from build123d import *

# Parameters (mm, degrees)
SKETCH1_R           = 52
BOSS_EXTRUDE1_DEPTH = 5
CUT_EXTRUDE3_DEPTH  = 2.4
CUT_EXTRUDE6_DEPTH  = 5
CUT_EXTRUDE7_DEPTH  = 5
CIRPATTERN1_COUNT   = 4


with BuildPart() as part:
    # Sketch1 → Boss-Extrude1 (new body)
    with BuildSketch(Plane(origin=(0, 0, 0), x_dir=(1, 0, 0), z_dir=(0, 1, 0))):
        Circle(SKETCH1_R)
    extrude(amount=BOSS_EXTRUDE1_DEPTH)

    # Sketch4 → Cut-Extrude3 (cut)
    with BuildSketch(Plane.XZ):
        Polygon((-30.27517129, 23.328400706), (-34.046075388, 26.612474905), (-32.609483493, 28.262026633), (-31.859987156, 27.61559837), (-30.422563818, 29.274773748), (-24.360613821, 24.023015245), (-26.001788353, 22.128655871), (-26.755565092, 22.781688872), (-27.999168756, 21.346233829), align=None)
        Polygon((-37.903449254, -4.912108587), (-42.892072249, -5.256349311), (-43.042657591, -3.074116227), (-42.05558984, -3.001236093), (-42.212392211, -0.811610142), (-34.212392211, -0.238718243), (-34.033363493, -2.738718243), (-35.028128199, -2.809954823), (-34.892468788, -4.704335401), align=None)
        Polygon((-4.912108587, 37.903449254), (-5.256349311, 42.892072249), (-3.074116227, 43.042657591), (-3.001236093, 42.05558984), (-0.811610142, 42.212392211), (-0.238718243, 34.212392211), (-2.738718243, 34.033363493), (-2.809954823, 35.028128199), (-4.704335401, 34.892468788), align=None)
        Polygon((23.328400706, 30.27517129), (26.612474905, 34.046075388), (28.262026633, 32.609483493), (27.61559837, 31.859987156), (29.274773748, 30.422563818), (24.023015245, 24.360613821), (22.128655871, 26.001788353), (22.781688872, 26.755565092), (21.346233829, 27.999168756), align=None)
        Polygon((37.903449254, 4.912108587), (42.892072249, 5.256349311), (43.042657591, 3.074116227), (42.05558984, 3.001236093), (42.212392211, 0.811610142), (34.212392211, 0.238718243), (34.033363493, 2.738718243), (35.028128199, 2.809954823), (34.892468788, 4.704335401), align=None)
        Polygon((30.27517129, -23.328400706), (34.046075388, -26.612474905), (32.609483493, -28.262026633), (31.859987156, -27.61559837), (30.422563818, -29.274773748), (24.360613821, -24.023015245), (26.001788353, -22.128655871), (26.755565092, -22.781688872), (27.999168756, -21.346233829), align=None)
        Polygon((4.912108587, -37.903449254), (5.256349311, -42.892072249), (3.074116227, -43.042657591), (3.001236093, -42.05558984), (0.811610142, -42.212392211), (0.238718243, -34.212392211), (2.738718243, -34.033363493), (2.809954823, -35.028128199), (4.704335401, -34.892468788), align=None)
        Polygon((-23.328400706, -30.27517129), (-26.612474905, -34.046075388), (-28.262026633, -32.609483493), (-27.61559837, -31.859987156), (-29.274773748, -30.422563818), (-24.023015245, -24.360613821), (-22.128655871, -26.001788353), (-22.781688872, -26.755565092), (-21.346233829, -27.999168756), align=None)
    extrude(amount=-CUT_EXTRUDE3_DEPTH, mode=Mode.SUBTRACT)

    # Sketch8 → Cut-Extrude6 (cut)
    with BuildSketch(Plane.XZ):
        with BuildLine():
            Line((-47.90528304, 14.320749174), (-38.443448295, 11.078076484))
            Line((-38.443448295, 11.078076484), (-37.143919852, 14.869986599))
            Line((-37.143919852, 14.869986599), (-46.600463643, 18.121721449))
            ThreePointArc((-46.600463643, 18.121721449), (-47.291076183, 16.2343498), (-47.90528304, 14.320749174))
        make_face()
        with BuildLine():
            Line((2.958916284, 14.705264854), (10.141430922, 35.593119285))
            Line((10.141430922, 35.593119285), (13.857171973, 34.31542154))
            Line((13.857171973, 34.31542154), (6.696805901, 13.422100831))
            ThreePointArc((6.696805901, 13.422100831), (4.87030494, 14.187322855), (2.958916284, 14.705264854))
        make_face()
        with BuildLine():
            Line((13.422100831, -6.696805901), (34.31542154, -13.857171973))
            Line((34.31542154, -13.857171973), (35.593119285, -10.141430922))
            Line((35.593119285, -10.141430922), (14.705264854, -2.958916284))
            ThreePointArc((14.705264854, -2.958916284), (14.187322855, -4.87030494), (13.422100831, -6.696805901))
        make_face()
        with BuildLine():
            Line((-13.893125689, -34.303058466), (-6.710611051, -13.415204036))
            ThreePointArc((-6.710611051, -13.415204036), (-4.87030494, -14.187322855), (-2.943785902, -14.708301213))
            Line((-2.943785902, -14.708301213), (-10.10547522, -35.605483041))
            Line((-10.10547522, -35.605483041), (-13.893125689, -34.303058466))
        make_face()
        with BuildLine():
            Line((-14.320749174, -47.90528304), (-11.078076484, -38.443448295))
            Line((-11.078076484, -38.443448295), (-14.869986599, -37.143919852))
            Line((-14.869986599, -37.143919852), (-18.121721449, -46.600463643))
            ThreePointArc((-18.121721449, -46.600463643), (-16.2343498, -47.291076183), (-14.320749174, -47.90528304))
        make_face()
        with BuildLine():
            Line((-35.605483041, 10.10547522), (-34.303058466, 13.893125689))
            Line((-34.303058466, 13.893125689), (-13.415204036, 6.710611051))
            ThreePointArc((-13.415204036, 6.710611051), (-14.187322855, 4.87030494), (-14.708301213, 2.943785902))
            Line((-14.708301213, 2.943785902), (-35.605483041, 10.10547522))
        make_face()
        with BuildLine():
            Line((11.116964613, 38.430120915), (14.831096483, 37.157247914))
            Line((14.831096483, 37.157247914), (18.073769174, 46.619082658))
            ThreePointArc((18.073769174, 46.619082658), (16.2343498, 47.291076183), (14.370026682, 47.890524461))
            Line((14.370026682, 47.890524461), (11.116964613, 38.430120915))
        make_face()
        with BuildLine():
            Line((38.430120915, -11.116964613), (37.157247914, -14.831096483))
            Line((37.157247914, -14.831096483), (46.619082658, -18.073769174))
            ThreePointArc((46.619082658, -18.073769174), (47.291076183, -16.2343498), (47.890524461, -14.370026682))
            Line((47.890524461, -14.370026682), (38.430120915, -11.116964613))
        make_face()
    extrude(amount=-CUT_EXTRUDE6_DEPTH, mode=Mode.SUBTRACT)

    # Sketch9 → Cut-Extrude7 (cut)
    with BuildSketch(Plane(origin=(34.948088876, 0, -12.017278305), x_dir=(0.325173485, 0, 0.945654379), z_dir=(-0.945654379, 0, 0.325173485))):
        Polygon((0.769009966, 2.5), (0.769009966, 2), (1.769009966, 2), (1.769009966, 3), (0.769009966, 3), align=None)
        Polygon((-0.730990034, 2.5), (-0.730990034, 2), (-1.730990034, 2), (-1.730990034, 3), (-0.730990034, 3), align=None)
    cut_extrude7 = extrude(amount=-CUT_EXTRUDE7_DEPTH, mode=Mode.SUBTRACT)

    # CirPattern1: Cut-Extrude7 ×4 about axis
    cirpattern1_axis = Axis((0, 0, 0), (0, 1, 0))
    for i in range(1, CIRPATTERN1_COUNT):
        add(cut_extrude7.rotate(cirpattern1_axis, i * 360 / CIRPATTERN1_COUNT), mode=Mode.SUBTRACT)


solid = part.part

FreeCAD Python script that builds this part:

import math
import FreeCAD as App
import Part
import Sketcher

doc = App.newDocument("Part")
params = doc.addObject("Spreadsheet::Sheet", "Params")
for row, (alias, value) in enumerate([
    ("sketch1_diameter", "104 mm"),
    ("pad1_length", "5 mm"),
    ("pocket1_length", "2.4 mm"),
    ("sketch3_radius", "50.000001 mm"),
    ("sketch3_radius2", "15 mm"),
    ("sketch3_length", "10 mm"),
    ("pocket2_length", "5 mm"),
    ("sketch4_width", "1 mm"),
    ("pocket3_length", "5 mm"),
], start=1):
    params.set(f"A{row}", alias)
    params.set(f"B{row}", "=" + value)
    params.setAlias(f"B{row}", alias)

body = doc.addObject("PartDesign::Body", "Body")

sketch1 = body.newObject("Sketcher::SketchObject", "Sketch")
sketch1.AttachmentSupport = (doc.getObject("XZ_Plane"), [""])
sketch1.MapMode = "FlatFace"
sketch1.addGeometry(Part.Circle(App.Vector(0, 0, 0), App.Vector(0, 0, 1), 52), False)
sketch1.addConstraint([
    Sketcher.Constraint("Coincident", 0, 3, -1, 1),
    Sketcher.Constraint("Diameter", 0, 104.0),
])
sketch1.setExpression("Constraints[1]", "Params.sketch1_diameter")
pad1 = body.newObject("PartDesign::Pad", "Pad")
pad1.Profile = sketch1
pad1.setExpression("Length", "Params.pad1_length")
pad1.Reversed = True

sketch2 = body.newObject("Sketcher::SketchObject", "Sketch001")
sketch2.AttachmentSupport = (doc.getObject("XZ_Plane"), [""])
sketch2.MapMode = "FlatFace"
sketch2.addGeometry([
    Part.LineSegment(App.Vector(-34.046075, 26.612475, 0), App.Vector(-30.275171, 23.328401, 0)),
    Part.LineSegment(App.Vector(-30.275171, 23.328401, 0), App.Vector(-27.999169, 21.346234, 0)),
    Part.LineSegment(App.Vector(-27.999169, 21.346234, 0), App.Vector(-26.755565, 22.781689, 0)),
    Part.LineSegment(App.Vector(-26.755565, 22.781689, 0), App.Vector(-26.001788, 22.128656, 0)),
    Part.LineSegment(App.Vector(-26.001788, 22.128656, 0), App.Vector(-24.360614, 24.023015, 0)),
    Part.LineSegment(App.Vector(-24.360614, 24.023015, 0), App.Vector(-30.422564, 29.274774, 0)),
    Part.LineSegment(App.Vector(-30.422564, 29.274774, 0), App.Vector(-31.859987, 27.615598, 0)),
    Part.LineSegment(App.Vector(-31.859987, 27.615598, 0), App.Vector(-32.609483, 28.262027, 0)),
    Part.LineSegment(App.Vector(-32.609483, 28.262027, 0), App.Vector(-34.046075, 26.612475, 0)),
    Part.LineSegment(App.Vector(-42.892072, -5.256349, 0), App.Vector(-37.903449, -4.912109, 0)),
    Part.LineSegment(App.Vector(-37.903449, -4.912109, 0), App.Vector(-34.892469, -4.704335, 0)),
    Part.LineSegment(App.Vector(-34.892469, -4.704335, 0), App.Vector(-35.028128, -2.809955, 0)),
    Part.LineSegment(App.Vector(-35.028128, -2.809955, 0), App.Vector(-34.033363, -2.738718, 0)),
    Part.LineSegment(App.Vector(-34.033363, -2.738718, 0), App.Vector(-34.212392, -0.238718, 0)),
    Part.LineSegment(App.Vector(-34.212392, -0.238718, 0), App.Vector(-42.212392, -0.81161, 0)),
    Part.LineSegment(App.Vector(-42.212392, -0.81161, 0), App.Vector(-42.05559, -3.001236, 0)),
    Part.LineSegment(App.Vector(-42.05559, -3.001236, 0), App.Vector(-43.042658, -3.074116, 0)),
    Part.LineSegment(App.Vector(-43.042658, -3.074116, 0), App.Vector(-42.892072, -5.256349, 0)),
    Part.LineSegment(App.Vector(-5.256349, 42.892072, 0), App.Vector(-4.912109, 37.903449, 0)),
    Part.LineSegment(App.Vector(-4.912109, 37.903449, 0), App.Vector(-4.704335, 34.892469, 0)),
    Part.LineSegment(App.Vector(-4.704335, 34.892469, 0), App.Vector(-2.809955, 35.028128, 0)),
    Part.LineSegment(App.Vector(-2.809955, 35.028128, 0), App.Vector(-2.738718, 34.033363, 0)),
    Part.LineSegment(App.Vector(-2.738718, 34.033363, 0), App.Vector(-0.238718, 34.212392, 0)),
    Part.LineSegment(App.Vector(-0.238718, 34.212392, 0), App.Vector(-0.81161, 42.212392, 0)),
    Part.LineSegment(App.Vector(-0.81161, 42.212392, 0), App.Vector(-3.001236, 42.05559, 0)),
    Part.LineSegment(App.Vector(-3.001236, 42.05559, 0), App.Vector(-3.074116, 43.042658, 0)),
    Part.LineSegment(App.Vector(-3.074116, 43.042658, 0), App.Vector(-5.256349, 42.892072, 0)),
    Part.LineSegment(App.Vector(26.612475, 34.046075, 0), App.Vector(23.328401, 30.275171, 0)),
    Part.LineSegment(App.Vector(23.328401, 30.275171, 0), App.Vector(21.346234, 27.999169, 0)),
    Part.LineSegment(App.Vector(21.346234, 27.999169, 0), App.Vector(22.781689, 26.755565, 0)),
    Part.LineSegment(App.Vector(22.781689, 26.755565, 0), App.Vector(22.128656, 26.001788, 0)),
    Part.LineSegment(App.Vector(22.128656, 26.001788, 0), App.Vector(24.023015, 24.360614, 0)),
    Part.LineSegment(App.Vector(24.023015, 24.360614, 0), App.Vector(29.274774, 30.422564, 0)),
    Part.LineSegment(App.Vector(29.274774, 30.422564, 0), App.Vector(27.615598, 31.859987, 0)),
    Part.LineSegment(App.Vector(27.615598, 31.859987, 0), App.Vector(28.262027, 32.609483, 0)),
    Part.LineSegment(App.Vector(28.262027, 32.609483, 0), App.Vector(26.612475, 34.046075, 0)),
    Part.LineSegment(App.Vector(42.892072, 5.256349, 0), App.Vector(37.903449, 4.912109, 0)),
    Part.LineSegment(App.Vector(37.903449, 4.912109, 0), App.Vector(34.892469, 4.704335, 0)),
    Part.LineSegment(App.Vector(34.892469, 4.704335, 0), App.Vector(35.028128, 2.809955, 0)),
    Part.LineSegment(App.Vector(35.028128, 2.809955, 0), App.Vector(34.033363, 2.738718, 0)),
    Part.LineSegment(App.Vector(34.033363, 2.738718, 0), App.Vector(34.212392, 0.238718, 0)),
    Part.LineSegment(App.Vector(34.212392, 0.238718, 0), App.Vector(42.212392, 0.81161, 0)),
    Part.LineSegment(App.Vector(42.212392, 0.81161, 0), App.Vector(42.05559, 3.001236, 0)),
    Part.LineSegment(App.Vector(42.05559, 3.001236, 0), App.Vector(43.042658, 3.074116, 0)),
    Part.LineSegment(App.Vector(43.042658, 3.074116, 0), App.Vector(42.892072, 5.256349, 0)),
    Part.LineSegment(App.Vector(34.046075, -26.612475, 0), App.Vector(30.275171, -23.328401, 0)),
    Part.LineSegment(App.Vector(30.275171, -23.328401, 0), App.Vector(27.999169, -21.346234, 0)),
    Part.LineSegment(App.Vector(27.999169, -21.346234, 0), App.Vector(26.755565, -22.781689, 0)),
    Part.LineSegment(App.Vector(26.755565, -22.781689, 0), App.Vector(26.001788, -22.128656, 0)),
    Part.LineSegment(App.Vector(26.001788, -22.128656, 0), App.Vector(24.360614, -24.023015, 0)),
    Part.LineSegment(App.Vector(24.360614, -24.023015, 0), App.Vector(30.422564, -29.274774, 0)),
    Part.LineSegment(App.Vector(30.422564, -29.274774, 0), App.Vector(31.859987, -27.615598, 0)),
    Part.LineSegment(App.Vector(31.859987, -27.615598, 0), App.Vector(32.609483, -28.262027, 0)),
    Part.LineSegment(App.Vector(32.609483, -28.262027, 0), App.Vector(34.046075, -26.612475, 0)),
    Part.LineSegment(App.Vector(5.256349, -42.892072, 0), App.Vector(4.912109, -37.903449, 0)),
    Part.LineSegment(App.Vector(4.912109, -37.903449, 0), App.Vector(4.704335, -34.892469, 0)),
    Part.LineSegment(App.Vector(4.704335, -34.892469, 0), App.Vector(2.809955, -35.028128, 0)),
    Part.LineSegment(App.Vector(2.809955, -35.028128, 0), App.Vector(2.738718, -34.033363, 0)),
    Part.LineSegment(App.Vector(2.738718, -34.033363, 0), App.Vector(0.238718, -34.212392, 0)),
    Part.LineSegment(App.Vector(0.238718, -34.212392, 0), App.Vector(0.81161, -42.212392, 0)),
    Part.LineSegment(App.Vector(0.81161, -42.212392, 0), App.Vector(3.001236, -42.05559, 0)),
    Part.LineSegment(App.Vector(3.001236, -42.05559, 0), App.Vector(3.074116, -43.042658, 0)),
    Part.LineSegment(App.Vector(3.074116, -43.042658, 0), App.Vector(5.256349, -42.892072, 0)),
    Part.LineSegment(App.Vector(-26.612475, -34.046075, 0), App.Vector(-23.328401, -30.275171, 0)),
    Part.LineSegment(App.Vector(-23.328401, -30.275171, 0), App.Vector(-21.346234, -27.999169, 0)),
    Part.LineSegment(App.Vector(-21.346234, -27.999169, 0), App.Vector(-22.781689, -26.755565, 0)),
    Part.LineSegment(App.Vector(-22.781689, -26.755565, 0), App.Vector(-22.128656, -26.001788, 0)),
    Part.LineSegment(App.Vector(-22.128656, -26.001788, 0), App.Vector(-24.023015, -24.360614, 0)),
    Part.LineSegment(App.Vector(-24.023015, -24.360614, 0), App.Vector(-29.274774, -30.422564, 0)),
    Part.LineSegment(App.Vector(-29.274774, -30.422564, 0), App.Vector(-27.615598, -31.859987, 0)),
    Part.LineSegment(App.Vector(-27.615598, -31.859987, 0), App.Vector(-28.262027, -32.609483, 0)),
    Part.LineSegment(App.Vector(-28.262027, -32.609483, 0), App.Vector(-26.612475, -34.046075, 0)),
], False)
sketch2.addConstraint([
    Sketcher.Constraint("Coincident", 0, 2, 1, 1),
    Sketcher.Constraint("Coincident", 1, 2, 2, 1),
    Sketcher.Constraint("Coincident", 2, 2, 3, 1),
    Sketcher.Constraint("Coincident", 3, 2, 4, 1),
    Sketcher.Constraint("Coincident", 4, 2, 5, 1),
    Sketcher.Constraint("Coincident", 5, 2, 6, 1),
    Sketcher.Constraint("Coincident", 6, 2, 7, 1),
    Sketcher.Constraint("Coincident", 7, 2, 8, 1),
    Sketcher.Constraint("Coincident", 8, 2, 0, 1),
    Sketcher.Constraint("Coincident", 9, 2, 10, 1),
    Sketcher.Constraint("Coincident", 10, 2, 11, 1),
    Sketcher.Constraint("Coincident", 11, 2, 12, 1),
    Sketcher.Constraint("Coincident", 12, 2, 13, 1),
    Sketcher.Constraint("Coincident", 13, 2, 14, 1),
    Sketcher.Constraint("Coincident", 14, 2, 15, 1),
    Sketcher.Constraint("Coincident", 15, 2, 16, 1),
    Sketcher.Constraint("Coincident", 16, 2, 17, 1),
    Sketcher.Constraint("Coincident", 17, 2, 9, 1),
    Sketcher.Constraint("Coincident", 18, 2, 19, 1),
    Sketcher.Constraint("Coincident", 19, 2, 20, 1),
    Sketcher.Constraint("Coincident", 20, 2, 21, 1),
    Sketcher.Constraint("Coincident", 21, 2, 22, 1),
    Sketcher.Constraint("Coincident", 22, 2, 23, 1),
    Sketcher.Constraint("Coincident", 23, 2, 24, 1),
    Sketcher.Constraint("Coincident", 24, 2, 25, 1),
    Sketcher.Constraint("Coincident", 25, 2, 26, 1),
    Sketcher.Constraint("Coincident", 26, 2, 18, 1),
    Sketcher.Constraint("Coincident", 27, 2, 28, 1),
    Sketcher.Constraint("Coincident", 28, 2, 29, 1),
    Sketcher.Constraint("Coincident", 29, 2, 30, 1),
    Sketcher.Constraint("Coincident", 30, 2, 31, 1),
    Sketcher.Constraint("Coincident", 31, 2, 32, 1),
    Sketcher.Constraint("Coincident", 32, 2, 33, 1),
    Sketcher.Constraint("Coincident", 33, 2, 34, 1),
    Sketcher.Constraint("Coincident", 34, 2, 35, 1),
    Sketcher.Constraint("Coincident", 35, 2, 27, 1),
    Sketcher.Constraint("Coincident", 36, 2, 37, 1),
    Sketcher.Constraint("Coincident", 37, 2, 38, 1),
    Sketcher.Constraint("Coincident", 38, 2, 39, 1),
    Sketcher.Constraint("Coincident", 39, 2, 40, 1),
    Sketcher.Constraint("Coincident", 40, 2, 41, 1),
    Sketcher.Constraint("Coincident", 41, 2, 42, 1),
    Sketcher.Constraint("Coincident", 42, 2, 43, 1),
    Sketcher.Constraint("Coincident", 43, 2, 44, 1),
    Sketcher.Constraint("Coincident", 44, 2, 36, 1),
    Sketcher.Constraint("Coincident", 45, 2, 46, 1),
    Sketcher.Constraint("Coincident", 46, 2, 47, 1),
    Sketcher.Constraint("Coincident", 47, 2, 48, 1),
    Sketcher.Constraint("Coincident", 48, 2, 49, 1),
    Sketcher.Constraint("Coincident", 49, 2, 50, 1),
    Sketcher.Constraint("Coincident", 50, 2, 51, 1),
    Sketcher.Constraint("Coincident", 51, 2, 52, 1),
    Sketcher.Constraint("Coincident", 52, 2, 53, 1),
    Sketcher.Constraint("Coincident", 53, 2, 45, 1),
    Sketcher.Constraint("Coincident", 54, 2, 55, 1),
    Sketcher.Constraint("Coincident", 55, 2, 56, 1),
    Sketcher.Constraint("Coincident", 56, 2, 57, 1),
    Sketcher.Constraint("Coincident", 57, 2, 58, 1),
    Sketcher.Constraint("Coincident", 58, 2, 59, 1),
    Sketcher.Constraint("Coincident", 59, 2, 60, 1),
    Sketcher.Constraint("Coincident", 60, 2, 61, 1),
    Sketcher.Constraint("Coincident", 61, 2, 62, 1),
    Sketcher.Constraint("Coincident", 62, 2, 54, 1),
    Sketcher.Constraint("Coincident", 63, 2, 64, 1),
    Sketcher.Constraint("Coincident", 64, 2, 65, 1),
    Sketcher.Constraint("Coincident", 65, 2, 66, 1),
    Sketcher.Constraint("Coincident", 66, 2, 67, 1),
    Sketcher.Constraint("Coincident", 67, 2, 68, 1),
    Sketcher.Constraint("Coincident", 68, 2, 69, 1),
    Sketcher.Constraint("Coincident", 69, 2, 70, 1),
    Sketcher.Constraint("Coincident", 70, 2, 71, 1),
    Sketcher.Constraint("Coincident", 71, 2, 63, 1),
    Sketcher.Constraint("DistanceY", -1, 1, 0, 2, 23.328401),
    Sketcher.Constraint("DistanceY", -1, 1, 6, 2, 27.615598),
    Sketcher.Constraint("DistanceX", -1, 1, 27, 2, 23.328401),
    Sketcher.Constraint("DistanceX", -1, 1, 33, 2, 27.615598),
    Sketcher.Constraint("DistanceY", 45, 2, -1, 1, 23.328401),
    Sketcher.Constraint("DistanceY", 51, 2, -1, 1, 27.615598),
    Sketcher.Constraint("DistanceX", 63, 2, -1, 1, 23.328401),
    Sketcher.Constraint("DistanceX", 69, 2, -1, 1, 27.615598),
    Sketcher.Constraint("Distance", 1, 3.018141),
    Sketcher.Constraint("Distance", 2, 1.899232),
    Sketcher.Constraint("Distance", 10, 3.018141),
    Sketcher.Constraint("Distance", 11, 1.899232),
    Sketcher.Constraint("Distance", 19, 3.018141),
    Sketcher.Constraint("Distance", 20, 1.899232),
    Sketcher.Constraint("Distance", 28, 3.018141),
    Sketcher.Constraint("Distance", 29, 1.899232),
    Sketcher.Constraint("Distance", 37, 3.018141),
    Sketcher.Constraint("Distance", 38, 1.899232),
    Sketcher.Constraint("Distance", 46, 3.018141),
    Sketcher.Constraint("Distance", 47, 1.899232),
    Sketcher.Constraint("Distance", 55, 3.018141),
    Sketcher.Constraint("Distance", 56, 1.899232),
    Sketcher.Constraint("Distance", 64, 3.018141),
    Sketcher.Constraint("Distance", 65, 1.899232),
    Sketcher.Constraint("DistanceX", 0, 2, -1, 1, 30.275171),
    Sketcher.Constraint("DistanceX", 1, 2, -1, 1, 27.999169),
    Sketcher.Constraint("DistanceY", -1, 1, 2, 2, 22.781689),
    Sketcher.Constraint("DistanceX", 3, 2, -1, 1, 26.001788),
    Sketcher.Constraint("DistanceX", 9, 2, -1, 1, 37.903449),
    Sketcher.Constraint("DistanceY", 9, 2, -1, 1, 4.912109),
    Sketcher.Constraint("DistanceX", 10, 2, -1, 1, 34.892469),
    Sketcher.Constraint("DistanceX", 11, 2, -1, 1, 35.028128),
    Sketcher.Constraint("DistanceY", 12, 2, -1, 1, 2.738718),
    Sketcher.Constraint("DistanceY", 13, 2, -1, 1, 0.238718),
    Sketcher.Constraint("DistanceY", 14, 2, -1, 1, 0.81161),
    Sketcher.Constraint("DistanceX", 15, 2, -1, 1, 42.05559),
    Sketcher.Constraint("DistanceY", 17, 2, -1, 1, 5.256349),
    Sketcher.Constraint("DistanceX", 18, 2, -1, 1, 4.912109),
    Sketcher.Constraint("DistanceY", -1, 1, 18, 2, 37.903449),
    Sketcher.Constraint("DistanceY", -1, 1, 19, 2, 34.892469),
    Sketcher.Constraint("DistanceY", -1, 1, 20, 2, 35.028128),
    Sketcher.Constraint("DistanceX", 21, 2, -1, 1, 2.738718),
    Sketcher.Constraint("DistanceX", 22, 2, -1, 1, 0.238718),
    Sketcher.Constraint("DistanceX", 23, 2, -1, 1, 0.81161),
    Sketcher.Constraint("DistanceY", -1, 1, 24, 2, 42.05559),
    Sketcher.Constraint("DistanceX", 26, 2, -1, 1, 5.256349),
    Sketcher.Constraint("DistanceY", -1, 1, 27, 2, 30.275171),
    Sketcher.Constraint("DistanceY", -1, 1, 28, 2, 27.999169),
    Sketcher.Constraint("DistanceX", -1, 1, 29, 2, 22.781689),
    Sketcher.Constraint("DistanceY", -1, 1, 30, 2, 26.001788),
    Sketcher.Constraint("DistanceX", -1, 1, 36, 2, 37.903449),
    Sketcher.Constraint("DistanceY", -1, 1, 36, 2, 4.912109),
    Sketcher.Constraint("DistanceX", -1, 1, 37, 2, 34.892469),
    Sketcher.Constraint("DistanceX", -1, 1, 38, 2, 35.028128),
    Sketcher.Constraint("DistanceY", -1, 1, 39, 2, 2.738718),
    Sketcher.Constraint("DistanceY", -1, 1, 40, 2, 0.238718),
    Sketcher.Constraint("DistanceY", -1, 1, 41, 2, 0.81161),
    Sketcher.Constraint("DistanceX", -1, 1, 42, 2, 42.05559),
    Sketcher.Constraint("DistanceY", -1, 1, 44, 2, 5.256349),
    Sketcher.Constraint("DistanceX", -1, 1, 45, 2, 30.275171),
    Sketcher.Constraint("DistanceX", -1, 1, 46, 2, 27.999169),
    Sketcher.Constraint("DistanceY", 47, 2, -1, 1, 22.781689),
    Sketcher.Constraint("DistanceX", -1, 1, 48, 2, 26.001788),
    Sketcher.Constraint("DistanceX", -1, 1, 54, 2, 4.912109),
    Sketcher.Constraint("DistanceY", 54, 2, -1, 1, 37.903449),
    Sketcher.Constraint("DistanceY", 55, 2, -1, 1, 34.892469),
    Sketcher.Constraint("DistanceY", 56, 2, -1, 1, 35.028128),
    Sketcher.Constraint("DistanceX", -1, 1, 57, 2, 2.738718),
    Sketcher.Constraint("DistanceX", -1, 1, 58, 2, 0.238718),
    Sketcher.Constraint("DistanceX", -1, 1, 59, 2, 0.81161),
    Sketcher.Constraint("DistanceY", 60, 2, -1, 1, 42.05559),
    Sketcher.Constraint("DistanceX", -1, 1, 62, 2, 5.256349),
    Sketcher.Constraint("DistanceY", 63, 2, -1, 1, 30.275171),
    Sketcher.Constraint("DistanceY", 64, 2, -1, 1, 27.999169),
    Sketcher.Constraint("DistanceX", 65, 2, -1, 1, 22.781689),
    Sketcher.Constraint("DistanceY", 66, 2, -1, 1, 26.001788),
    Sketcher.Constraint("Distance", 0, 5.000486),
    Sketcher.Constraint("Distance", 3, 0.997312),
    Sketcher.Constraint("Distance", 4, 2.506402),
    Sketcher.Constraint("Distance", 5, 8.020487),
    Sketcher.Constraint("Distance", 6, 2.195233),
    Sketcher.Constraint("Distance", 7, 0.989755),
    Sketcher.Constraint("Distance", 8, 2.187422),
    Sketcher.Constraint("Distance", 9, 5.000486),
    Sketcher.Constraint("Distance", 12, 0.997312),
    Sketcher.Constraint("Distance", 13, 2.506402),
    Sketcher.Constraint("Distance", 14, 8.020487),
    Sketcher.Constraint("Distance", 15, 2.195233),
    Sketcher.Constraint("Distance", 16, 0.989755),
    Sketcher.Constraint("Distance", 17, 2.187422),
    Sketcher.Constraint("Distance", 18, 5.000486),
    Sketcher.Constraint("Distance", 21, 0.997312),
    Sketcher.Constraint("Distance", 22, 2.506402),
    Sketcher.Constraint("Distance", 23, 8.020487),
    Sketcher.Constraint("Distance", 24, 2.195233),
    Sketcher.Constraint("Distance", 25, 0.989755),
    Sketcher.Constraint("Distance", 26, 2.187422),
    Sketcher.Constraint("Distance", 27, 5.000486),
    Sketcher.Constraint("Distance", 30, 0.997312),
    Sketcher.Constraint("Distance", 31, 2.506402),
    Sketcher.Constraint("Distance", 32, 8.020487),
    Sketcher.Constraint("Distance", 33, 2.195233),
    Sketcher.Constraint("Distance", 34, 0.989755),
    Sketcher.Constraint("Distance", 35, 2.187422),
    Sketcher.Constraint("Distance", 36, 5.000486),
    Sketcher.Constraint("Distance", 39, 0.997312),
    Sketcher.Constraint("Distance", 40, 2.506402),
    Sketcher.Constraint("Distance", 41, 8.020487),
    Sketcher.Constraint("Distance", 42, 2.195233),
    Sketcher.Constraint("Distance", 43, 0.989755),
    Sketcher.Constraint("Distance", 44, 2.187422),
    Sketcher.Constraint("Distance", 45, 5.000486),
    Sketcher.Constraint("Distance", 48, 0.997312),
    Sketcher.Constraint("Distance", 49, 2.506402),
    Sketcher.Constraint("Distance", 50, 8.020487),
    Sketcher.Constraint("Distance", 51, 2.195233),
    Sketcher.Constraint("Distance", 52, 0.989755),
    Sketcher.Constraint("Distance", 53, 2.187422),
    Sketcher.Constraint("Distance", 54, 5.000486),
    Sketcher.Constraint("Distance", 57, 0.997312),
    Sketcher.Constraint("Distance", 58, 2.506402),
    Sketcher.Constraint("Distance", 59, 8.020487),
    Sketcher.Constraint("Distance", 60, 2.195233),
    Sketcher.Constraint("Distance", 61, 0.989755),
    Sketcher.Constraint("Distance", 62, 2.187422),
    Sketcher.Constraint("Distance", 63, 5.000486),
    Sketcher.Constraint("Distance", 66, 0.997312),
    Sketcher.Constraint("Distance", 67, 2.506402),
    Sketcher.Constraint("Distance", 68, 8.020487),
    Sketcher.Constraint("Distance", 69, 2.195233),
    Sketcher.Constraint("Distance", 70, 0.989755),
    Sketcher.Constraint("Distance", 71, 2.187422),
    Sketcher.Constraint("DistanceX", 4, 2, -1, 1, 24.360614),
    Sketcher.Constraint("DistanceX", 5, 2, -1, 1, 30.422564),
    Sketcher.Constraint("DistanceX", 7, 2, -1, 1, 32.609483),
    Sketcher.Constraint("DistanceX", -1, 1, 31, 2, 24.023015),
    Sketcher.Constraint("DistanceX", -1, 1, 32, 2, 29.274774),
    Sketcher.Constraint("DistanceX", -1, 1, 34, 2, 28.262027),
    Sketcher.Constraint("DistanceX", -1, 1, 49, 2, 24.360614),
    Sketcher.Constraint("DistanceX", -1, 1, 50, 2, 30.422564),
    Sketcher.Constraint("DistanceX", -1, 1, 52, 2, 32.609483),
    Sketcher.Constraint("DistanceX", 67, 2, -1, 1, 24.023015),
    Sketcher.Constraint("DistanceX", 68, 2, -1, 1, 29.274774),
    Sketcher.Constraint("DistanceX", 70, 2, -1, 1, 28.262027),
])
pocket1 = body.newObject("PartDesign::Pocket", "Pocket")
pocket1.Profile = sketch2
pocket1.setExpression("Length", "Params.pocket1_length")

sketch3 = body.newObject("Sketcher::SketchObject", "Sketch002")
sketch3.AttachmentSupport = (doc.getObject("XZ_Plane"), [""])
sketch3.MapMode = "FlatFace"
sketch3.addGeometry([
    Part.LineSegment(App.Vector(-47.905283, 14.320749, 0), App.Vector(-38.443448, 11.078076, 0)),
    Part.LineSegment(App.Vector(-38.443448, 11.078076, 0), App.Vector(-37.14392, 14.869987, 0)),
    Part.LineSegment(App.Vector(-37.14392, 14.869987, 0), App.Vector(-46.600464, 18.121721, 0)),
    Part.ArcOfCircle(Part.Circle(App.Vector(0.000001, 0, 0), App.Vector(0, 0, 1), 50.000001), math.radians(158.750222), math.radians(163.356552)),
    Part.LineSegment(App.Vector(10.141431, 35.593119, 0), App.Vector(2.958916, 14.705265, 0)),
    Part.ArcOfCircle(Part.Circle(App.Vector(0, 0, 0), App.Vector(0, 0, 1), 15), math.radians(63.483615), math.radians(78.62316)),
    Part.LineSegment(App.Vector(6.696806, 13.422101, 0), App.Vector(13.857172, 34.315422, 0)),
    Part.LineSegment(App.Vector(13.857172, 34.315422, 0), App.Vector(10.141431, 35.593119, 0)),
    Part.LineSegment(App.Vector(13.422101, -6.696806, 0), App.Vector(34.315422, -13.857172, 0)),
    Part.LineSegment(App.Vector(34.315422, -13.857172, 0), App.Vector(35.593119, -10.141431, 0)),
    Part.LineSegment(App.Vector(35.593119, -10.141431, 0), App.Vector(14.705265, -2.958916, 0)),
    Part.ArcOfCircle(Part.Circle(App.Vector(0, 0, 0), App.Vector(0, 0, 1), 15), math.radians(-26.516385), math.radians(-11.37684)),
    Part.LineSegment(App.Vector(-6.710611, -13.415204, 0), App.Vector(-13.893126, -34.303058, 0)),
    Part.LineSegment(App.Vector(-13.893126, -34.303058, 0), App.Vector(-10.105475, -35.605483, 0)),
    Part.LineSegment(App.Vector(-10.105475, -35.605483, 0), App.Vector(-2.943786, -14.708301, 0)),
    Part.ArcOfCircle(Part.Circle(App.Vector(0, 0, 0), App.Vector(0, 0, 1), 15), math.radians(-116.575331), math.radians(-101.317894)),
    Part.LineSegment(App.Vector(-14.320749, -47.905283, 0), App.Vector(-11.078076, -38.443448, 0)),
    Part.LineSegment(App.Vector(-11.078076, -38.443448, 0), App.Vector(-14.869987, -37.14392, 0)),
    Part.LineSegment(App.Vector(-14.869987, -37.14392, 0), App.Vector(-18.121721, -46.600464, 0)),
    Part.ArcOfCircle(Part.Circle(App.Vector(0, 0.000001, 0), App.Vector(0, 0, 1), 50.000001), math.radians(-111.249778), math.radians(-106.643448)),
    Part.LineSegment(App.Vector(-34.303058, 13.893126, 0), App.Vector(-35.605483, 10.105475, 0)),
    Part.LineSegment(App.Vector(-35.605483, 10.105475, 0), App.Vector(-14.708301, 2.943786, 0)),
    Part.ArcOfCircle(Part.Circle(App.Vector(0, 0, 0), App.Vector(0, 0, 1), 15), math.radians(153.424669), math.radians(168.682106)),
    Part.LineSegment(App.Vector(-13.415204, 6.710611, 0), App.Vector(-34.303058, 13.893126, 0)),
    Part.LineSegment(App.Vector(11.116965, 38.430121, 0), App.Vector(14.831096, 37.157248, 0)),
    Part.LineSegment(App.Vector(14.831096, 37.157248, 0), App.Vector(18.073769, 46.619083, 0)),
    Part.ArcOfCircle(Part.Circle(App.Vector(0, 0, 0), App.Vector(0, 0, 1), 50), math.radians(68.809168), math.radians(73.297606)),
    Part.LineSegment(App.Vector(14.370027, 47.890524, 0), App.Vector(11.116965, 38.430121, 0)),
    Part.LineSegment(App.Vector(38.430121, -11.116965, 0), App.Vector(37.157248, -14.831096, 0)),
    Part.LineSegment(App.Vector(37.157248, -14.831096, 0), App.Vector(46.619083, -18.073769, 0)),
    Part.ArcOfCircle(Part.Circle(App.Vector(0, 0, 0), App.Vector(0, 0, 1), 50), math.radians(-21.190832), math.radians(-16.702394)),
    Part.LineSegment(App.Vector(47.890524, -14.370027, 0), App.Vector(38.430121, -11.116965, 0)),
], False)
sketch3.addConstraint([
    Sketcher.Constraint("Coincident", 0, 2, 1, 1),
    Sketcher.Constraint("Coincident", 1, 2, 2, 1),
    Sketcher.Constraint("Coincident", 2, 2, 3, 1),
    Sketcher.Constraint("Coincident", 3, 2, 0, 1),
    Sketcher.Constraint("Coincident", 4, 2, 5, 2),
    Sketcher.Constraint("Coincident", 5, 1, 6, 1),
    Sketcher.Constraint("Coincident", 6, 2, 7, 1),
    Sketcher.Constraint("Coincident", 7, 2, 4, 1),
    Sketcher.Constraint("Coincident", 8, 2, 9, 1),
    Sketcher.Constraint("Coincident", 9, 2, 10, 1),
    Sketcher.Constraint("Coincident", 10, 2, 11, 2),
    Sketcher.Constraint("Coincident", 11, 1, 8, 1),
    Sketcher.Constraint("Coincident", 12, 2, 13, 1),
    Sketcher.Constraint("Coincident", 13, 2, 14, 1),
    Sketcher.Constraint("Coincident", 14, 2, 15, 2),
    Sketcher.Constraint("Coincident", 15, 1, 12, 1),
    Sketcher.Constraint("Coincident", 16, 2, 17, 1),
    Sketcher.Constraint("Coincident", 17, 2, 18, 1),
    Sketcher.Constraint("Coincident", 18, 2, 19, 1),
    Sketcher.Constraint("Coincident", 19, 2, 16, 1),
    Sketcher.Constraint("Coincident", 20, 2, 21, 1),
    Sketcher.Constraint("Coincident", 21, 2, 22, 2),
    Sketcher.Constraint("Coincident", 22, 1, 23, 1),
    Sketcher.Constraint("Coincident", 23, 2, 20, 1),
    Sketcher.Constraint("Coincident", 24, 2, 25, 1),
    Sketcher.Constraint("Coincident", 25, 2, 26, 1),
    Sketcher.Constraint("Coincident", 26, 2, 27, 1),
    Sketcher.Constraint("Coincident", 27, 2, 24, 1),
    Sketcher.Constraint("Coincident", 28, 2, 29, 1),
    Sketcher.Constraint("Coincident", 29, 2, 30, 1),
    Sketcher.Constraint("Coincident", 30, 2, 31, 1),
    Sketcher.Constraint("Coincident", 31, 2, 28, 1),
    Sketcher.Constraint("Coincident", 3, 3, -1, 1),
    Sketcher.Constraint("Coincident", 5, 3, -1, 1),
    Sketcher.Constraint("Coincident", 11, 3, -1, 1),
    Sketcher.Constraint("Coincident", 15, 3, -1, 1),
    Sketcher.Constraint("Coincident", 19, 3, -1, 1),
    Sketcher.Constraint("Coincident", 22, 3, -1, 1),
    Sketcher.Constraint("Coincident", 26, 3, -1, 1),
    Sketcher.Constraint("Coincident", 30, 3, -1, 1),
    Sketcher.Constraint("Equal", 5, 11),
    Sketcher.Constraint("Equal", 11, 15),
    Sketcher.Constraint("Equal", 3, 19),
    Sketcher.Constraint("Equal", 15, 22),
    Sketcher.Constraint("Equal", 19, 26),
    Sketcher.Constraint("Equal", 26, 30),
    Sketcher.Constraint("Perpendicular", 0, 1),
    Sketcher.Constraint("Perpendicular", 2, 4),
    Sketcher.Constraint("Parallel", 1, 6),
    Sketcher.Constraint("Perpendicular", 4, 7),
    Sketcher.Constraint("Perpendicular", 6, 8),
    Sketcher.Constraint("Perpendicular", 7, 9),
    Sketcher.Constraint("Perpendicular", 9, 10),
    Sketcher.Constraint("Perpendicular", 10, 12),
    Sketcher.Constraint("Perpendicular", 12, 13),
    Sketcher.Constraint("Perpendicular", 8, 14),
    Sketcher.Constraint("Parallel", 14, 16),
    Sketcher.Constraint("Perpendicular", 16, 17),
    Sketcher.Constraint("Perpendicular", 13, 18),
    Sketcher.Constraint("Parallel", 18, 20),
    Sketcher.Constraint("Parallel", 17, 21),
    Sketcher.Constraint("Perpendicular", 20, 23),
    Sketcher.Constraint("Parallel", 21, 24),
    Sketcher.Constraint("Perpendicular", 24, 25),
    Sketcher.Constraint("Perpendicular", 23, 27),
    Sketcher.Constraint("Parallel", 25, 28),
    Sketcher.Constraint("Perpendicular", 28, 29),
    Sketcher.Constraint("Perpendicular", 27, 31),
    Sketcher.Constraint("Equal", 6, 8),
    Sketcher.Constraint("Equal", 7, 9),
    Sketcher.Constraint("Equal", 4, 10),
    Sketcher.Constraint("Equal", 10, 12),
    Sketcher.Constraint("Equal", 0, 16),
    Sketcher.Constraint("Equal", 1, 17),
    Sketcher.Constraint("Equal", 2, 18),
    Sketcher.Constraint("Equal", 13, 20),
    Sketcher.Constraint("Equal", 14, 21),
    Sketcher.Constraint("Equal", 12, 23),
    Sketcher.Constraint("Equal", 16, 25),
    Sketcher.Constraint("Equal", 24, 28),
    Sketcher.Constraint("Equal", 25, 29),
    Sketcher.Constraint("Equal", 27, 31),
    Sketcher.Constraint("Radius", 3, 50.000001),
    Sketcher.Constraint("Radius", 5, 15.0),
    Sketcher.Constraint("Distance", 2, 10.0),
    Sketcher.Constraint("DistanceY", 7, 2, 27, 2, 2.837002),
    Sketcher.Constraint("DistanceY", -1, 1, 5, 1, 13.422101),
    Sketcher.Constraint("DistanceY", 14, 2, -1, 1, 14.708301),
    Sketcher.Constraint("DistanceX", 16, 2, 13, 2, 0.972601),
    Sketcher.Constraint("DistanceX", 17, 2, 14, 2, 11.926201),
    Sketcher.Constraint("DistanceY", 19, 2, 13, 2, 12.2998),
    Sketcher.Constraint("DistanceY", 6, 2, 27, 2, 4.114699),
    Sketcher.Constraint("Distance", 0, 10.002062),
    Sketcher.Constraint("Distance", 1, 4.008411),
    Sketcher.Constraint("Distance", 24, 3.926192),
    Sketcher.Constraint("Distance", 27, 10.004082),
])
sketch3.setExpression("Constraints[82]", "Params.sketch3_radius")
sketch3.setExpression("Constraints[83]", "Params.sketch3_radius2")
sketch3.setExpression("Constraints[84]", "Params.sketch3_length")
pocket2 = body.newObject("PartDesign::Pocket", "Pocket001")
pocket2.Profile = sketch3
pocket2.setExpression("Length", "Params.pocket2_length")

sketch4 = body.newObject("Sketcher::SketchObject", "Sketch003")
sketch4.Placement = App.Placement(App.Vector(34.948089, 0, -12.017278), App.Rotation(App.Vector(0.325173485, 0, 0.945654379), App.Vector(0, 1, 0), App.Vector(-0.945654379, 0, 0.325173485), "ZXY"))
sketch4.addGeometry([
    Part.LineSegment(App.Vector(0.76901, 2, 0), App.Vector(1.76901, 2, 0)),
    Part.LineSegment(App.Vector(1.76901, 2, 0), App.Vector(1.76901, 3, 0)),
    Part.LineSegment(App.Vector(1.76901, 3, 0), App.Vector(0.76901, 3, 0)),
    Part.LineSegment(App.Vector(0.76901, 3, 0), App.Vector(0.76901, 2, 0)),
    Part.LineSegment(App.Vector(-0.73099, 2, 0), App.Vector(-0.73099, 3, 0)),
    Part.LineSegment(App.Vector(-0.73099, 3, 0), App.Vector(-1.73099, 3, 0)),
    Part.LineSegment(App.Vector(-1.73099, 3, 0), App.Vector(-1.73099, 2, 0)),
    Part.LineSegment(App.Vector(-1.73099, 2, 0), App.Vector(-0.73099, 2, 0)),
], False)
sketch4.addConstraint([
    Sketcher.Constraint("Coincident", 0, 2, 1, 1),
    Sketcher.Constraint("Coincident", 1, 2, 2, 1),
    Sketcher.Constraint("Coincident", 2, 2, 3, 1),
    Sketcher.Constraint("Coincident", 3, 2, 0, 1),
    Sketcher.Constraint("Coincident", 4, 2, 5, 1),
    Sketcher.Constraint("Coincident", 5, 2, 6, 1),
    Sketcher.Constraint("Coincident", 6, 2, 7, 1),
    Sketcher.Constraint("Coincident", 7, 2, 4, 1),
    Sketcher.Constraint("Horizontal", 0),
    Sketcher.Constraint("Vertical", 1),
    Sketcher.Constraint("Horizontal", 2),
    Sketcher.Constraint("Vertical", 3),
    Sketcher.Constraint("Vertical", 4),
    Sketcher.Constraint("Horizontal", 5),
    Sketcher.Constraint("Vertical", 6),
    Sketcher.Constraint("Horizontal", 7),
    Sketcher.Constraint("Horizontal", 2, 2, 4, 2),
    Sketcher.Constraint("Horizontal", 3, 2, 6, 2),
    Sketcher.Constraint("Equal", 2, 5),
    Sketcher.Constraint("Equal", 7, 1),
    Sketcher.Constraint("DistanceX", 0, 1, 0, 2, 1.0),
    Sketcher.Constraint("DistanceY", -1, 1, 0, 2, 2.0),
    Sketcher.Constraint("DistanceX", 4, 2, 2, 2, 1.5),
    Sketcher.Constraint("DistanceX", -1, 1, 0, 2, 1.76901),
])
sketch4.setExpression("Constraints[20]", "Params.sketch4_width")
pocket3 = body.newObject("PartDesign::Pocket", "Pocket002")
pocket3.Profile = sketch4
pocket3.setExpression("Length", "Params.pocket3_length")
doc.recompute()

polarpattern = body.newObject("PartDesign::PolarPattern", "PolarPattern")
polarpattern.Originals = [pocket3]
polarpattern.Axis = (doc.getObject("Y_Axis"), [""])
polarpattern.Angle = 360
polarpattern.Occurrences = 4
body.Tip = polarpattern

doc.recompute()
